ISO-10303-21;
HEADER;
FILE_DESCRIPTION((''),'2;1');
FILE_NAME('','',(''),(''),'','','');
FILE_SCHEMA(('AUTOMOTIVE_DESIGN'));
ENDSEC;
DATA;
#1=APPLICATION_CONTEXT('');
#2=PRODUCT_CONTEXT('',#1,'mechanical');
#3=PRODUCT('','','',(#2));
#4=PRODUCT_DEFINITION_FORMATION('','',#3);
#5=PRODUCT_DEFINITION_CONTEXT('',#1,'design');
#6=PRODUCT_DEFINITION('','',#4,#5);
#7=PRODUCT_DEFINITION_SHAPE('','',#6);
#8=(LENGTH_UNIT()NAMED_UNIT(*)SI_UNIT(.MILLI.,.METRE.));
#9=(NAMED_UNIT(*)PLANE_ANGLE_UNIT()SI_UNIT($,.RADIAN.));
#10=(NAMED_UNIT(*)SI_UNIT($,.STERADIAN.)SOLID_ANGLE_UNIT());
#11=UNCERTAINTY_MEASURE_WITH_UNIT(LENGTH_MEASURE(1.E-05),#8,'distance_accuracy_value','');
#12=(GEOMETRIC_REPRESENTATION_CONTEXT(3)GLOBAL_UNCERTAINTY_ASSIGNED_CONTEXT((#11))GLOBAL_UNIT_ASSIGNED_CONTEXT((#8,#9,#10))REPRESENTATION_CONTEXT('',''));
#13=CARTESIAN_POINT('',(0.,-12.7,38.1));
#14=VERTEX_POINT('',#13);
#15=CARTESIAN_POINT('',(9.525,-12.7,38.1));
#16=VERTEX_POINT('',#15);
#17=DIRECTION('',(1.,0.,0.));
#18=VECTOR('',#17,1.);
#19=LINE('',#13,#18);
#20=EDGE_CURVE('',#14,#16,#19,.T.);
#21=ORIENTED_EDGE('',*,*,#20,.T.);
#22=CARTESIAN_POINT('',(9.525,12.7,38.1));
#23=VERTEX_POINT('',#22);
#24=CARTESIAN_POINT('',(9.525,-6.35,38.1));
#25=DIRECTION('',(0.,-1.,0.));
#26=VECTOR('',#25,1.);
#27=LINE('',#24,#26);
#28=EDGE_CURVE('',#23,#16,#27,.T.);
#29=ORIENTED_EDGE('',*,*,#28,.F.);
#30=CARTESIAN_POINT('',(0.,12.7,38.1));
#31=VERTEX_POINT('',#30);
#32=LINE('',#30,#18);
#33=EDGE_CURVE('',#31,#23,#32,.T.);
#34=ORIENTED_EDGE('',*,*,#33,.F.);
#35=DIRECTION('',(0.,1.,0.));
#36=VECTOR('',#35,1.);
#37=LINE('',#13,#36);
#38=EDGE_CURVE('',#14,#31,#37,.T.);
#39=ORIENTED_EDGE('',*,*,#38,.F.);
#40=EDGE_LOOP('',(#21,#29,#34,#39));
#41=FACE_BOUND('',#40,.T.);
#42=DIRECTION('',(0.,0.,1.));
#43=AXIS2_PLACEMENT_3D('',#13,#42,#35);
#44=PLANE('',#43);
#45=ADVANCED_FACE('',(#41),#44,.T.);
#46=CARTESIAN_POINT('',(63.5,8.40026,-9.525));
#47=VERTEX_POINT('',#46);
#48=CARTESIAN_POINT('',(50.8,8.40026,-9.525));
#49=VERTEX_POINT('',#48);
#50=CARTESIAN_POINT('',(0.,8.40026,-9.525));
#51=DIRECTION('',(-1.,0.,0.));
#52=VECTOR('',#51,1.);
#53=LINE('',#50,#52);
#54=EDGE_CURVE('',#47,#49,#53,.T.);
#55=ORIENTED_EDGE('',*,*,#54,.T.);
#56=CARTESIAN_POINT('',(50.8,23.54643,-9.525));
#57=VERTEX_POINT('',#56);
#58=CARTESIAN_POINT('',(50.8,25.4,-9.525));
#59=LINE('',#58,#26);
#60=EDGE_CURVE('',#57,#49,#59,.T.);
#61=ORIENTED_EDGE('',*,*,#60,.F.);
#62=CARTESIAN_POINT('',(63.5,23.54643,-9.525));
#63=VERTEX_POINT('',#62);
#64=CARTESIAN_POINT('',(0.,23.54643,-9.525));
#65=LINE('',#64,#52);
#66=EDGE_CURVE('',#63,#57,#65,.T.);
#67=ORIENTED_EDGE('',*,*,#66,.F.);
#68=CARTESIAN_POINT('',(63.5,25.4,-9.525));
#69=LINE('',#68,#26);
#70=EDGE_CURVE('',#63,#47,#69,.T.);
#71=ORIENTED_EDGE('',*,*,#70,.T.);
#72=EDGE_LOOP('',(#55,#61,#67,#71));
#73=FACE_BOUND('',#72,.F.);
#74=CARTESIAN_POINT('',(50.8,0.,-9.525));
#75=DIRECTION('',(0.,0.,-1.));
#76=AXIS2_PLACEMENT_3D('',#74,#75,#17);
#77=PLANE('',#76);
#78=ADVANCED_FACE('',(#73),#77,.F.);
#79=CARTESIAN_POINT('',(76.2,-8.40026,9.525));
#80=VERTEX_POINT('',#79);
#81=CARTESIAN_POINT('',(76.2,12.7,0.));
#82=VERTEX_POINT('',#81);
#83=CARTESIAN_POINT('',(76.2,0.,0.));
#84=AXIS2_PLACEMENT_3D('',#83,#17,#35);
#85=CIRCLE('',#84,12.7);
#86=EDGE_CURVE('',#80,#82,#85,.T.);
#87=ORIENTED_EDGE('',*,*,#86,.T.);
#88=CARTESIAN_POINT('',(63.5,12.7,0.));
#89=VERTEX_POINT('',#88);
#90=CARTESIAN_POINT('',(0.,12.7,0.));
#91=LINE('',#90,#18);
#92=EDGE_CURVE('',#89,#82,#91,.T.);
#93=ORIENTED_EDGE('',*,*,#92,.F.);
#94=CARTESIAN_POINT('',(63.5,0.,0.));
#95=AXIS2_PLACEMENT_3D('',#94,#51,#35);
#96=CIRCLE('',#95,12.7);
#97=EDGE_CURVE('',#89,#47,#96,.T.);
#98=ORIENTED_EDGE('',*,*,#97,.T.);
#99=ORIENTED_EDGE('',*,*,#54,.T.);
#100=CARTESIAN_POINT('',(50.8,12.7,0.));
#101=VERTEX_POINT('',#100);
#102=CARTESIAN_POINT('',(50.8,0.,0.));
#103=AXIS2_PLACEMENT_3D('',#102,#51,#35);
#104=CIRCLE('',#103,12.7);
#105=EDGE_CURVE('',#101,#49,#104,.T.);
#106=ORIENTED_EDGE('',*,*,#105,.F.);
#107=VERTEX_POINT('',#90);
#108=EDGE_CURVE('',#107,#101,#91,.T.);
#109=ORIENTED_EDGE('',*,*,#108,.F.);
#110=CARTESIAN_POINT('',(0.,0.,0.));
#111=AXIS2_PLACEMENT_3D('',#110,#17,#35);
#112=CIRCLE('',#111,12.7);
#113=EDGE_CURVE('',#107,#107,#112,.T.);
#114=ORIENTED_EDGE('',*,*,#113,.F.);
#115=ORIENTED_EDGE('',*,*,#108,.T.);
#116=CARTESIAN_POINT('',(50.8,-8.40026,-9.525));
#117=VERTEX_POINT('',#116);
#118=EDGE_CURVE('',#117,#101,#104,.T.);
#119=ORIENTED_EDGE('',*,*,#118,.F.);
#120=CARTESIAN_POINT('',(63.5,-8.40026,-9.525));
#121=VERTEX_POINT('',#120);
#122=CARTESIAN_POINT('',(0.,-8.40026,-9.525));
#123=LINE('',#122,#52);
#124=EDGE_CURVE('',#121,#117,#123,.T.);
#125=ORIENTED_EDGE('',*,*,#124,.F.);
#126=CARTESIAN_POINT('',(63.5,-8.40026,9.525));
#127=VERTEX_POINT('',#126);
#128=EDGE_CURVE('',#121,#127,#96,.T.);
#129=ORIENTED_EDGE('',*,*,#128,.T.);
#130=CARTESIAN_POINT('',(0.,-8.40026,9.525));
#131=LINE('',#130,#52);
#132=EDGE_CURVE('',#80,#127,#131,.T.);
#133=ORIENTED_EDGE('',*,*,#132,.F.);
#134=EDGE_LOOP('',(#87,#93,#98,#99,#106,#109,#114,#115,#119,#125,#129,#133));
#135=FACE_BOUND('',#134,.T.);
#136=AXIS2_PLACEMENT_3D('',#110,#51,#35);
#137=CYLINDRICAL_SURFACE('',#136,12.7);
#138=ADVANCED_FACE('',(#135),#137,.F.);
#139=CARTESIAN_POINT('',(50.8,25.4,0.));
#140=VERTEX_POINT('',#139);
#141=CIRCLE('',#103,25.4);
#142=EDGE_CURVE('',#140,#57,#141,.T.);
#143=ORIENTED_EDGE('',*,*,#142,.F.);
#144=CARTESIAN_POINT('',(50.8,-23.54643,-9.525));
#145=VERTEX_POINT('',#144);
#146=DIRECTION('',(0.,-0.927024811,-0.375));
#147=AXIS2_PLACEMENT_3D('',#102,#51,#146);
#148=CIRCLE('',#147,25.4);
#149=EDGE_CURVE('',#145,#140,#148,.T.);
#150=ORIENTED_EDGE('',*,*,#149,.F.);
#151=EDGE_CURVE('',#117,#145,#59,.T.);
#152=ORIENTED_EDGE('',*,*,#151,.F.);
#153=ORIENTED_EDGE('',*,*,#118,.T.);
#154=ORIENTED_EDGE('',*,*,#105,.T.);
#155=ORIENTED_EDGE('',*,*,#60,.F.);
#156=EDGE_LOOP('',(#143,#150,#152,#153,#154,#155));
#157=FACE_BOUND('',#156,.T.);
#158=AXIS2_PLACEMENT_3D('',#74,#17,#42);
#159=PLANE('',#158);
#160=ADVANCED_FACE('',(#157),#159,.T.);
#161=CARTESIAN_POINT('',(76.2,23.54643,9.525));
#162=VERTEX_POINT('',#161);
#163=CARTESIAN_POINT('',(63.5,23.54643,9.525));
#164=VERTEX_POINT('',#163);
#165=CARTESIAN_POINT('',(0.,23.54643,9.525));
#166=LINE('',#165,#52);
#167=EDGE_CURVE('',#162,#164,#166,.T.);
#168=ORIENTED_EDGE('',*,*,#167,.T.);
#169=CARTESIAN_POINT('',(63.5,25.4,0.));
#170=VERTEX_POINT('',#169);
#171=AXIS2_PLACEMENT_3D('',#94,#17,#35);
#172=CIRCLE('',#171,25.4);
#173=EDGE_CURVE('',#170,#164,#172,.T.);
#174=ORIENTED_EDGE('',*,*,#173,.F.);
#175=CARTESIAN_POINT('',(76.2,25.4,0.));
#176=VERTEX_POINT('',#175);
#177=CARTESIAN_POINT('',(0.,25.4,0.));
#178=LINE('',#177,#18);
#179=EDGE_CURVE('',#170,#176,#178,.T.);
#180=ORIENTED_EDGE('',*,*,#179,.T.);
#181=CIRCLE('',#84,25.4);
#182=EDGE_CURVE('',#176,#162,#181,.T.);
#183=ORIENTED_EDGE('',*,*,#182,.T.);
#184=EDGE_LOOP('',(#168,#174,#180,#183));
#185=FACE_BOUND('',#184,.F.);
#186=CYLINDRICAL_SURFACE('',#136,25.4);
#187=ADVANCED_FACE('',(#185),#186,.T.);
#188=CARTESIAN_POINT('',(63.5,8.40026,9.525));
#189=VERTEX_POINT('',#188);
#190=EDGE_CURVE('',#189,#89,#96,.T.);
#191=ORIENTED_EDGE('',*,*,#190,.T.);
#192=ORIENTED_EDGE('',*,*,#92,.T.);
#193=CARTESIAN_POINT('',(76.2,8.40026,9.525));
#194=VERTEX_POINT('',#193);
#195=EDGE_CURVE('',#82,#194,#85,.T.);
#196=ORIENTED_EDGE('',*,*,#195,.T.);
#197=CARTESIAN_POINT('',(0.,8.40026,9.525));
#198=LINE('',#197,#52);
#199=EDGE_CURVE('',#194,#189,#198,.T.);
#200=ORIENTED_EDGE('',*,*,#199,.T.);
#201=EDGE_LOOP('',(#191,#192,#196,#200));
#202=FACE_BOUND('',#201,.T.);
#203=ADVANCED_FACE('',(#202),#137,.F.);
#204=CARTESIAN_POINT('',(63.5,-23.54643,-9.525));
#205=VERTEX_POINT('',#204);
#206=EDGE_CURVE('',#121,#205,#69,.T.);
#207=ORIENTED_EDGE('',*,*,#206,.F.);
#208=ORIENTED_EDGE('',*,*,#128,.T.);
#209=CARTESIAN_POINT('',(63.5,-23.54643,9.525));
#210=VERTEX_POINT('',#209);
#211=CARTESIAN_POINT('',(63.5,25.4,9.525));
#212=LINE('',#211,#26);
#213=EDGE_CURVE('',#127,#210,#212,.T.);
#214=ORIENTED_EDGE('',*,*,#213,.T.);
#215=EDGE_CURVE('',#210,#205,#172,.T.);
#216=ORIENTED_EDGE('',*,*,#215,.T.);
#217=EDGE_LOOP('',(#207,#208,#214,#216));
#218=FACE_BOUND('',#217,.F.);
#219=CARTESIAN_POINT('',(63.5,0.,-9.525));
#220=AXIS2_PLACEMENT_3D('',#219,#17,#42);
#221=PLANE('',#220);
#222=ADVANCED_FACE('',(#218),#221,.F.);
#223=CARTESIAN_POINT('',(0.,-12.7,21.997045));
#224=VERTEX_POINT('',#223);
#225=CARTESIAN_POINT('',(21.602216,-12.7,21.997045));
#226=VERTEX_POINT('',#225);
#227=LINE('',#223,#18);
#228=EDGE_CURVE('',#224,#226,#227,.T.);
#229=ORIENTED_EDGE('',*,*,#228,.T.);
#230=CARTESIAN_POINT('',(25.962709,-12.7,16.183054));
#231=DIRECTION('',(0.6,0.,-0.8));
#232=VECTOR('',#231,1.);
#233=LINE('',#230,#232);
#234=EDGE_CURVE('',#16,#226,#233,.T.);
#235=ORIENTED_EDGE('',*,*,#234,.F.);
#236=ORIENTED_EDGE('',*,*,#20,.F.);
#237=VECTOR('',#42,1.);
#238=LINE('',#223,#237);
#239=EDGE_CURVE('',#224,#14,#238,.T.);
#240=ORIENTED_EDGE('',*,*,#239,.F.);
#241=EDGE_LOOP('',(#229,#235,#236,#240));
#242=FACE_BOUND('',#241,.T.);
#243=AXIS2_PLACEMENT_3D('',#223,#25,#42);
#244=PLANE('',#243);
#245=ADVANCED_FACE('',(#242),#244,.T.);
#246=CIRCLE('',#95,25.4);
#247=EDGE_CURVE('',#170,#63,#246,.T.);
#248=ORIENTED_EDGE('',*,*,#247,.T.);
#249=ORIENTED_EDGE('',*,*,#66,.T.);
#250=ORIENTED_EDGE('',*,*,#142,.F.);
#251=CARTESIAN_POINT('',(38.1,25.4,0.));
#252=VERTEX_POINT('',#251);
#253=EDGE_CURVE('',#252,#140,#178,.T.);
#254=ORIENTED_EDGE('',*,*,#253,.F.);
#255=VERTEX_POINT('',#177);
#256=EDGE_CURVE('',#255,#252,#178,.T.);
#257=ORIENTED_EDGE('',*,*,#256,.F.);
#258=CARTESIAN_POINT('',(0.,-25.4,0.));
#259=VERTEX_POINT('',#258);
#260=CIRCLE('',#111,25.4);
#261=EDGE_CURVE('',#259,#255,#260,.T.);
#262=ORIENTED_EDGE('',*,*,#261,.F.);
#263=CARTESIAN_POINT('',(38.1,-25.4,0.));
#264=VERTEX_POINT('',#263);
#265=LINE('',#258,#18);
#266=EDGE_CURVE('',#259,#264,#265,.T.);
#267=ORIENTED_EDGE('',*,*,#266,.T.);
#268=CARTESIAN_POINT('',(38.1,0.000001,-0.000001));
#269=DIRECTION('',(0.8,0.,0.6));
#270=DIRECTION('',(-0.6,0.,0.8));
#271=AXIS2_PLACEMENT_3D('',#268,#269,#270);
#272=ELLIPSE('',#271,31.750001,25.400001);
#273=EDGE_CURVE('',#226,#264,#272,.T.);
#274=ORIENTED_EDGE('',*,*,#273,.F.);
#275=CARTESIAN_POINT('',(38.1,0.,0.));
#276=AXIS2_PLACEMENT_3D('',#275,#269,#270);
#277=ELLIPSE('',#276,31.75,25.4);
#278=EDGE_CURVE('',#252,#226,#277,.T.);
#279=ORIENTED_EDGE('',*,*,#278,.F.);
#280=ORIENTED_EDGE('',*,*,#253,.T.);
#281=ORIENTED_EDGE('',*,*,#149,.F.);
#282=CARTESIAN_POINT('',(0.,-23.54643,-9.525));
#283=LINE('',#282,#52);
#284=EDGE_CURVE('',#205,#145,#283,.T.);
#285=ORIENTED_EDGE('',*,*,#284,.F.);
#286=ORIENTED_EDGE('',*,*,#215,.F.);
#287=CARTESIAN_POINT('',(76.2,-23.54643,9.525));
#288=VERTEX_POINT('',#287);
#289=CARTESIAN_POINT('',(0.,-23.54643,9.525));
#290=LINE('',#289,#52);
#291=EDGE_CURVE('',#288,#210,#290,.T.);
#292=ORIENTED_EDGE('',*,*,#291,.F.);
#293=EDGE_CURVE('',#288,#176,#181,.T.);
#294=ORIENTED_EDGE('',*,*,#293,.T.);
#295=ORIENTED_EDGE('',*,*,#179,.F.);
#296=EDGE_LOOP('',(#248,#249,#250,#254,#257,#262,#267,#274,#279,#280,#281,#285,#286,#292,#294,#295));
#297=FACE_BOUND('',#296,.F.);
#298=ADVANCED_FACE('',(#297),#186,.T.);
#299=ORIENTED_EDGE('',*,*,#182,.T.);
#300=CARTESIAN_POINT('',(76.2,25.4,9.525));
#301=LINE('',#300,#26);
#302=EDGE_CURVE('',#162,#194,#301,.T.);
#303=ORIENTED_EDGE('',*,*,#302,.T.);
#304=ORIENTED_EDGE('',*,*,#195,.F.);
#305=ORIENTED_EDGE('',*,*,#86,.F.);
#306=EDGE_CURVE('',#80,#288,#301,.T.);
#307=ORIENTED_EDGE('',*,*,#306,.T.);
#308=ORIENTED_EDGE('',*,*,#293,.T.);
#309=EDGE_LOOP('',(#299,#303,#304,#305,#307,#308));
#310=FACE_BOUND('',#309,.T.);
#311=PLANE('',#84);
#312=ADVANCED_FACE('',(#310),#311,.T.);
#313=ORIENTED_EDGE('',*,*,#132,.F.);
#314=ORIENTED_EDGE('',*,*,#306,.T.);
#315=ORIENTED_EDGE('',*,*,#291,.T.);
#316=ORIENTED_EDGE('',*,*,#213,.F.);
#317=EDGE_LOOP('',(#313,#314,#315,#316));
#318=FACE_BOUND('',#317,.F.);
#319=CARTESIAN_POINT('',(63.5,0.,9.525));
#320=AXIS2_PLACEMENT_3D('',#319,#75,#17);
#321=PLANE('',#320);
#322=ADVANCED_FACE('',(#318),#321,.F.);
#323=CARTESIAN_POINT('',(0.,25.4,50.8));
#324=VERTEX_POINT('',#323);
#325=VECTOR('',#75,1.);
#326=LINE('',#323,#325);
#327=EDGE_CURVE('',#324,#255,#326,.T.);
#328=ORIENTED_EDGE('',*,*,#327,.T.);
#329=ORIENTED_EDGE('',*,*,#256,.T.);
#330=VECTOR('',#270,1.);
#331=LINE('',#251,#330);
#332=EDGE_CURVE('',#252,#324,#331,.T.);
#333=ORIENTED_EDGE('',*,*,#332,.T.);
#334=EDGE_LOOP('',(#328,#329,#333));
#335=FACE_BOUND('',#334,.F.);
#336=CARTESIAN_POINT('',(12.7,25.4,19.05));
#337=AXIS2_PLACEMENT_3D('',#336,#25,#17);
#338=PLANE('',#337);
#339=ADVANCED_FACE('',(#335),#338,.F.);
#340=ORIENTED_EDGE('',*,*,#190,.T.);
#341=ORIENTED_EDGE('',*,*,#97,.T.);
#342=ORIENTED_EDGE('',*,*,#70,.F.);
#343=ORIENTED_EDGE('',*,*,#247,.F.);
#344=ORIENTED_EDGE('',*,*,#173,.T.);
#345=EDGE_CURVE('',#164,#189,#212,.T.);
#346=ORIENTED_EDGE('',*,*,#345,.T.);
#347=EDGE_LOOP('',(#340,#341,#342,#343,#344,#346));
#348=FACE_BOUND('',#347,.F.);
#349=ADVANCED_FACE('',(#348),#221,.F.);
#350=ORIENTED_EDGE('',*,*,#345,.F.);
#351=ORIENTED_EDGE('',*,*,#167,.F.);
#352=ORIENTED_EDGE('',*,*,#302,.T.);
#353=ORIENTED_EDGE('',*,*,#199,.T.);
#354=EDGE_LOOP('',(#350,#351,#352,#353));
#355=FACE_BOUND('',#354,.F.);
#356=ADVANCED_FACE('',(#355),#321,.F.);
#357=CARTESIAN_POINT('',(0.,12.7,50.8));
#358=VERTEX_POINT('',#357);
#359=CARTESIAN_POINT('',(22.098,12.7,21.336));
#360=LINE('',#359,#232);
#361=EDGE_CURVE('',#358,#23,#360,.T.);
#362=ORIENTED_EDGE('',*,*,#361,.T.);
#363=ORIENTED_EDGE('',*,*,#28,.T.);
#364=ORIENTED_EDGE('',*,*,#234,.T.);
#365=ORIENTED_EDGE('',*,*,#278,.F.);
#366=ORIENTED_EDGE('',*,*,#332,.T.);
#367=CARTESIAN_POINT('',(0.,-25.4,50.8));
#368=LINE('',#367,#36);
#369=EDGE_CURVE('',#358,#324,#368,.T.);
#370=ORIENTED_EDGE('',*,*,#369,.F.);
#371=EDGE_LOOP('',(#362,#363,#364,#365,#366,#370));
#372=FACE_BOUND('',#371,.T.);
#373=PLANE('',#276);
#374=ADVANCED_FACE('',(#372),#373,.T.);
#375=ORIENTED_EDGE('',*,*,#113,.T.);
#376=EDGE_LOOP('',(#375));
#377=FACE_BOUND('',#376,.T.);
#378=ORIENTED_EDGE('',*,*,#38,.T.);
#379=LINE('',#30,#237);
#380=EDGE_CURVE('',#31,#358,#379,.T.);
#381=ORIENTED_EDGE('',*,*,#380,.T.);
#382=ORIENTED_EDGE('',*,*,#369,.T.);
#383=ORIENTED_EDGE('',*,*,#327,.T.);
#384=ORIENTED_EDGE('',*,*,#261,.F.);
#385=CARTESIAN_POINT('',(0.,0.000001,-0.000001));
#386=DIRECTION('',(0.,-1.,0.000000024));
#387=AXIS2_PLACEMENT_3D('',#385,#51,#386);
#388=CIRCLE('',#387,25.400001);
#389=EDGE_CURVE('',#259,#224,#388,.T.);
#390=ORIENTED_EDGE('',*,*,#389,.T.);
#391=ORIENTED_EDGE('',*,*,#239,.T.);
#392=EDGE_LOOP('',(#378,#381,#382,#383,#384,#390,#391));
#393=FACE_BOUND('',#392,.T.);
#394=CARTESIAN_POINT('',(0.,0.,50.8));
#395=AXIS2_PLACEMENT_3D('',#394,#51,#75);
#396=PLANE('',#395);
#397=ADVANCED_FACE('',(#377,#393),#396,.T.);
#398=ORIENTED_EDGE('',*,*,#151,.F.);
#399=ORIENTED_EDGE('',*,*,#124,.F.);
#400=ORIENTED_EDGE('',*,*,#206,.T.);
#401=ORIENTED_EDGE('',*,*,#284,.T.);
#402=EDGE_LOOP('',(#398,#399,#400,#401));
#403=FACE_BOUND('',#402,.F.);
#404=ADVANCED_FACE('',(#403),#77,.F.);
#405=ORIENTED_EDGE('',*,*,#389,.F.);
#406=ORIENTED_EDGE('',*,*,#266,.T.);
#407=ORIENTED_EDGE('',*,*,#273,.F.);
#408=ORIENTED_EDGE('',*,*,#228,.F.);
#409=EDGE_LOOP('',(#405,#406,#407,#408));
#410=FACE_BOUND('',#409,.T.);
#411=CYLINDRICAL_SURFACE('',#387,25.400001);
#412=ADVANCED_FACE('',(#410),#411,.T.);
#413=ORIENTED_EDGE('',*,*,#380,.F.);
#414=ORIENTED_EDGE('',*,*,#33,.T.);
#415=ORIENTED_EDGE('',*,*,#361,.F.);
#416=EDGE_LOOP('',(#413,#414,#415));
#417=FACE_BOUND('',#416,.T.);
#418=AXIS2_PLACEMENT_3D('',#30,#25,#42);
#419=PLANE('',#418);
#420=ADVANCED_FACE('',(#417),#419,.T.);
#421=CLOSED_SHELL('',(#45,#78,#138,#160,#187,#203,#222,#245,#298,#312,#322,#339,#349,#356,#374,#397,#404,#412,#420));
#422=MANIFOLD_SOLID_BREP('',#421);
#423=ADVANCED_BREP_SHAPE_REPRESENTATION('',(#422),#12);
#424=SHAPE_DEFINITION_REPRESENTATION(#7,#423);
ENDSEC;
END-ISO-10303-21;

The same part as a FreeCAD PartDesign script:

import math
import FreeCAD as App
import Part
import Sketcher
from FreeCAD import Vector
Q = App.Units.Quantity


def add_polygon(sketch, points):
    """Adds a closed chain of lines whose ends are joined by coincident constraints."""
    first, n = sketch.GeometryCount, len(points)
    for a, b in zip(points, points[1:] + points[:1]):
        sketch.addGeometry(Part.LineSegment(App.Vector(*a, 0), App.Vector(*b, 0)), False)
    for i in range(n):
        sketch.addConstraint(Sketcher.Constraint("Coincident", first + i, 2, first + (i + 1) % n, 1))

doc = App.newDocument("Part")
body = doc.addObject("PartDesign::Body", "Body")

# Sketch on XZ plane
sketch1 = body.newObject("Sketcher::SketchObject", "Sketch")
sketch1.AttachmentSupport = (doc.getObject("XZ_Plane"), [""])
sketch1.MapMode = "FlatFace"
add_polygon(sketch1, [(0, 51), (0, 0), (38, 0)])  # lines 0-2
sketch1.addConstraint([
    Sketcher.Constraint("Vertical", 0),
    Sketcher.Constraint("Horizontal", 1),
    Sketcher.Constraint("Coincident", 0, 2, -1, 1),
    Sketcher.Constraint("DistanceY", 0, 2, 0, 1, Q("2 in")),
    Sketcher.Constraint("DistanceX", 1, 1, 1, 2, Q("1.5 in")),
])
pad1 = body.newObject("PartDesign::Pad", "Pad")
pad1.Profile = sketch1
pad1.Length = Q("2 in")
pad1.Midplane = True

# Sketch on YZ plane
sketch2 = body.newObject("Sketcher::SketchObject", "Sketch001")
sketch2.AttachmentSupport = (doc.getObject("YZ_Plane"), [""])
sketch2.MapMode = "FlatFace"
sketch2.addGeometry([
    Part.ArcOfCircle(Part.Circle(Vector(0, 0, 0), Vector(0, 0, 1), 25), math.radians(120), math.radians(180)),  # 0
    Part.LineSegment(Vector(-13, 22, 0), Vector(-13, 38, 0)),  # 1
    Part.LineSegment(Vector(-13, 38, 0), Vector(13, 38, 0)),  # 2
    Part.LineSegment(Vector(13, 38, 0), Vector(13, 51, 0)),  # 3
    Part.LineSegment(Vector(13, 51, 0), Vector(-25, 51, 0)),  # 4
    Part.LineSegment(Vector(-25, 51, 0), Vector(-25, 0, 0)),  # 5
], False)
sketch2.addConstraint([
    Sketcher.Constraint("Coincident", 0, 1, 1, 1),
    Sketcher.Constraint("Coincident", 1, 2, 2, 1),
    Sketcher.Constraint("Coincident", 2, 2, 3, 1),
    Sketcher.Constraint("Coincident", 3, 2, 4, 1),
    Sketcher.Constraint("Coincident", 4, 2, 5, 1),
    Sketcher.Constraint("Tangent", 5, 2, 0, 2),
    Sketcher.Constraint("Vertical", 1),
    Sketcher.Constraint("Horizontal", 2),
    Sketcher.Constraint("Vertical", 3),
    Sketcher.Constraint("Horizontal", 4),
    Sketcher.Constraint("Vertical", 5),
    Sketcher.Constraint("Coincident", 0, 3, -1, 1),
    Sketcher.Constraint("Radius", 0, Q("1 in")),
    Sketcher.Constraint("DistanceX", 2, 1, 2, 2, Q("1 in")),
    Sketcher.Constraint("DistanceY", 5, 2, 5, 1, Q("2 in")),
    Sketcher.Constraint("DistanceX", 4, 2, 4, 1, Q("1.5 in")),
    Sketcher.Constraint("DistanceY", 3, 1, 3, 2, Q("0.5 in")),
])
pocket1 = body.newObject("PartDesign::Pocket", "Pocket")
pocket1.Profile = sketch2
pocket1.Length = Q("2 in")
pocket1.Reversed = True

# Sketch on YZ plane
sketch3 = body.newObject("Sketcher::SketchObject", "Sketch002")
sketch3.AttachmentSupport = (doc.getObject("YZ_Plane"), [""])
sketch3.MapMode = "FlatFace"
sketch3.addGeometry([
    Part.Circle(Vector(0, 0, 0), Vector(0, 0, 1), 25),
    Part.Circle(Vector(0, 0, 0), Vector(0, 0, 1), 13),
], False)
sketch3.addConstraint([
    Sketcher.Constraint("Coincident", 0, 3, -1, 1),
    Sketcher.Constraint("Coincident", 1, 3, -1, 1),
    Sketcher.Constraint("Diameter", 0, Q("2 in")),
    Sketcher.Constraint("Diameter", 1, Q("1 in")),
])
pad2 = body.newObject("PartDesign::Pad", "Pad001")
pad2.Profile = sketch3
pad2.Length = Q("3 in")

# Sketch on YZ plane
sketch4 = body.newObject("Sketcher::SketchObject", "Sketch003")
sketch4.AttachmentSupport = (doc.getObject("YZ_Plane"), [""])
sketch4.MapMode = "FlatFace"
sketch4.addGeometry(Part.Circle(Vector(0, 0, 0), Vector(0, 0, 1), 13), False)
sketch4.addConstraint([
    Sketcher.Constraint("Coincident", 0, 3, -1, 1),
    Sketcher.Constraint("Diameter", 0, Q("1 in")),
])
pocket2 = body.newObject("PartDesign::Pocket", "Pocket001")
pocket2.Profile = sketch4
pocket2.Length = Q("3 in")
pocket2.Reversed = True

# Sketch on XZ plane
sketch5 = body.newObject("Sketcher::SketchObject", "Sketch004")
sketch5.AttachmentSupport = (doc.getObject("XZ_Plane"), [""])
sketch5.MapMode = "FlatFace"
add_polygon(sketch5, [(51, 25), (51, -10), (64, -10), (64, 25)])  # lines 0-3
sketch5.addConstraint([
    Sketcher.Constraint("Vertical", 0),
    Sketcher.Constraint("Horizontal", 1),
    Sketcher.Constraint("Vertical", 2),
    Sketcher.Constraint("Horizontal", 3),
    Sketcher.Constraint("DistanceX", 1, 1, 1, 2, Q("0.5 in")),
    Sketcher.Constraint("DistanceX", -1, 1, 0, 2, Q("2 in")),
    Sketcher.Constraint("DistanceY", -1, 1, 2, 2, Q("1 in")),
    Sketcher.Constraint("DistanceY", 0, 2, 0, 1, Q("1.375 in")),
])
pocket3 = body.newObject("PartDesign::Pocket", "Pocket002")
pocket3.Profile = sketch5
pocket3.Length = Q("2 in")
pocket3.Midplane = True

# Sketch on XZ plane
sketch6 = body.newObject("Sketcher::SketchObject", "Sketch005")
sketch6.AttachmentSupport = (doc.getObject("XZ_Plane"), [""])
sketch6.MapMode = "FlatFace"
add_polygon(sketch6, [(64, 25), (64, 10), (76, 10), (76, 25)])  # lines 0-3
sketch6.addConstraint([
    Sketcher.Constraint("Vertical", 0),
    Sketcher.Constraint("Horizontal", 1),
    Sketcher.Constraint("Vertical", 2),
    Sketcher.Constraint("Horizontal", 3),
    Sketcher.Constraint("DistanceX", 1, 1, 1, 2, Q("0.5 in")),
    Sketcher.Constraint("DistanceX", -1, 1, 1, 2, Q("3 in")),
    Sketcher.Constraint("DistanceY", -1, 1, 2, 2, Q("1 in")),
    Sketcher.Constraint("DistanceY", 0, 2, 0, 1, Q("0.625 in")),
])
pocket4 = body.newObject("PartDesign::Pocket", "Pocket003")
pocket4.Profile = sketch6
pocket4.Length = Q("2 in")
pocket4.Midplane = True

doc.recompute()
